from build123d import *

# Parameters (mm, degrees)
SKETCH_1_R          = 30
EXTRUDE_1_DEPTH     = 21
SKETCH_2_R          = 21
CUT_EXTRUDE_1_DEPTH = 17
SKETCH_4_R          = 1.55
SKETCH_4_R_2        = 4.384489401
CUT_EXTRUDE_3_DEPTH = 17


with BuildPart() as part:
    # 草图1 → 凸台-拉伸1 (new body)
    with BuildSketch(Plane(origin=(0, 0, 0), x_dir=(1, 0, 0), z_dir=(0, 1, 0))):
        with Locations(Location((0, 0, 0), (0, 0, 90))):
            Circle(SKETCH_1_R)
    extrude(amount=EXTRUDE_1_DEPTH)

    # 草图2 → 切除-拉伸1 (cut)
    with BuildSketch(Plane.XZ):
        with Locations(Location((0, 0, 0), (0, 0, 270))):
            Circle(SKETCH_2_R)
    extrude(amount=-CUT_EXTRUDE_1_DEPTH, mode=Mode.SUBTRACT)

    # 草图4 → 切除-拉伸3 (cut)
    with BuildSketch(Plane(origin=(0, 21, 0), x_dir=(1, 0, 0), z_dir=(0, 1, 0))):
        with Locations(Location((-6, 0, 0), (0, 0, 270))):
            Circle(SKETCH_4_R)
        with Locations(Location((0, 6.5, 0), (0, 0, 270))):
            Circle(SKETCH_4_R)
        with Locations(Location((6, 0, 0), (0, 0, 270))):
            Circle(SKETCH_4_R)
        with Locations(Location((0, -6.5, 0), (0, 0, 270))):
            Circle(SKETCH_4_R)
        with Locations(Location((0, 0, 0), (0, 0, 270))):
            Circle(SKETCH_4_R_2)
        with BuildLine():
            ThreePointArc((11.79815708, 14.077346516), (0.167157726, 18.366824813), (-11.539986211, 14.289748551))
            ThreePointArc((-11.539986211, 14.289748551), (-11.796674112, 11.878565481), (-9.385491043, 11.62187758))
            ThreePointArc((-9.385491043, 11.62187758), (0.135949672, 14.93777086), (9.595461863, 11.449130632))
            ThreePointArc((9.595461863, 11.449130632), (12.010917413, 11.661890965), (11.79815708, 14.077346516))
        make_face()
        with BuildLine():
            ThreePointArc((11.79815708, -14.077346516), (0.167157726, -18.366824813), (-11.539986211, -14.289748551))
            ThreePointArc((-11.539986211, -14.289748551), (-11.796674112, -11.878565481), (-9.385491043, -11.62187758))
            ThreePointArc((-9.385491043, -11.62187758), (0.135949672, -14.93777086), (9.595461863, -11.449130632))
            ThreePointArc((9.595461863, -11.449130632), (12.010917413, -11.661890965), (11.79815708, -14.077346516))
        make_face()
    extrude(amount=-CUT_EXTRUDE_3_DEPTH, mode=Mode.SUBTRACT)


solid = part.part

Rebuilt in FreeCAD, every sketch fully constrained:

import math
import FreeCAD as App
import Part
import Sketcher

doc = App.newDocument("Part")
params = doc.addObject("Spreadsheet::Sheet", "Params")
for row, (alias, value) in enumerate([
    ("sketch1_diameter", "60 mm"),
    ("pad1_length", "21 mm"),
    ("sketch2_diameter", "42 mm"),
    ("pocket1_length", "17 mm"),
    ("sketch3_diameter", "3.1 mm"),
    ("pocket2_length", "17 mm"),
], start=1):
    params.set(f"A{row}", alias)
    params.set(f"B{row}", "=" + value)
    params.setAlias(f"B{row}", alias)

body = doc.addObject("PartDesign::Body", "Body")

# Sketch on XZ plane
sketch1 = body.newObject("Sketcher::SketchObject", "Sketch")
sketch1.AttachmentSupport = (doc.getObject("XZ_Plane"), [""])
sketch1.MapMode = "FlatFace"
sketch1.addGeometry(Part.Circle(App.Vector(0, 0, 0), App.Vector(0, 0, 1), 30), False)
sketch1.addConstraint([
    Sketcher.Constraint("Coincident", 0, 3, -1, 1),
    Sketcher.Constraint("Diameter", 0, 60.0),
])
sketch1.setExpression("Constraints[1]", "Params.sketch1_diameter")
pad1 = body.newObject("PartDesign::Pad", "Pad")
pad1.Profile = sketch1
pad1.setExpression("Length", "Params.pad1_length")
pad1.Reversed = True

# Sketch on XZ plane
sketch2 = body.newObject("Sketcher::SketchObject", "Sketch001")
sketch2.AttachmentSupport = (doc.getObject("XZ_Plane"), [""])
sketch2.MapMode = "FlatFace"
sketch2.addGeometry(Part.Circle(App.Vector(0, 0, 0), App.Vector(0, 0, 1), 21), False)
sketch2.addConstraint([
    Sketcher.Constraint("Coincident", 0, 3, -1, 1),
    Sketcher.Constraint("Diameter", 0, 42.0),
])
sketch2.setExpression("Constraints[1]", "Params.sketch2_diameter")
pocket1 = body.newObject("PartDesign::Pocket", "Pocket")
pocket1.Profile = sketch2
pocket1.setExpression("Length", "Params.pocket1_length")

# Sketch on XZ plane
sketch3 = body.newObject("Sketcher::SketchObject", "Sketch002")
sketch3.AttachmentSupport = (doc.getObject("XZ_Plane"), [""])
sketch3.MapMode = "FlatFace"
sketch3.AttachmentOffset = App.Placement(App.Vector(0, 0, -21), App.Rotation())
sketch3.addGeometry([
    Part.Circle(App.Vector(-6, 0, 0), App.Vector(0, 0, 1), 1.6),  # 0
    Part.Circle(App.Vector(0, -6.5, 0), App.Vector(0, 0, 1), 1.6),  # 1
    Part.Circle(App.Vector(6, 0, 0), App.Vector(0, 0, 1), 1.6),  # 2
    Part.Circle(App.Vector(0, 6.5, 0), App.Vector(0, 0, 1), 1.6),  # 3
    Part.Circle(App.Vector(0, 0, 0), App.Vector(0, 0, 1), 4.4),  # 4
    Part.ArcOfCircle(Part.Circle(App.Vector(0, 0, 0), App.Vector(0, 0, 1), 18.4), math.radians(-129), math.radians(-50)),  # 5
    Part.ArcOfCircle(Part.Circle(App.Vector(-10.5, -13, 0), App.Vector(0, 0, 1), 1.7), math.radians(51), math.radians(231)),  # 6
    Part.ArcOfCircle(Part.Circle(App.Vector(0, 0, 0), App.Vector(0, 0, 1), 14.9), math.radians(-129), math.radians(-50)),  # 7
    Part.ArcOfCircle(Part.Circle(App.Vector(10.7, -12.8, 0), App.Vector(0, 0, 1), 1.7), math.radians(-50), math.radians(130)),  # 8
    Part.ArcOfCircle(Part.Circle(App.Vector(0, 0, 0), App.Vector(0, 0, 1), 18.4), math.radians(50), math.radians(129)),  # 9
    Part.ArcOfCircle(Part.Circle(App.Vector(10.7, 12.8, 0), App.Vector(0, 0, 1), 1.7), math.radians(-130), math.radians(50)),  # 10
    Part.ArcOfCircle(Part.Circle(App.Vector(0, 0, 0), App.Vector(0, 0, 1), 14.9), math.radians(50), math.radians(129)),  # 11
    Part.ArcOfCircle(Part.Circle(App.Vector(-10.5, 13, 0), App.Vector(0, 0, 1), 1.7), math.radians(129), math.radians(309)),  # 12
], False)
sketch3.addConstraint([
    Sketcher.Constraint("Tangent", 5, 1, 6, 2),
    Sketcher.Constraint("Tangent", 6, 1, 7, 1),
    Sketcher.Constraint("Tangent", 7, 2, 8, 2),
    Sketcher.Constraint("Tangent", 8, 1, 5, 2),
    Sketcher.Constraint("Tangent", 9, 1, 10, 2),
    Sketcher.Constraint("Tangent", 10, 1, 11, 1),
    Sketcher.Constraint("Tangent", 11, 2, 12, 2),
    Sketcher.Constraint("Tangent", 12, 1, 9, 2),
    Sketcher.Constraint("Coincident", 4, 3, -1, 1),
    Sketcher.Constraint("Coincident", 5, 3, -1, 1),
    Sketcher.Constraint("Coincident", 7, 3, -1, 1),
    Sketcher.Constraint("Coincident", 9, 3, -1, 1),
    Sketcher.Constraint("Coincident", 11, 3, -1, 1),
    Sketcher.Constraint("Equal", 0, 1),
    Sketcher.Constraint("Equal", 1, 2),
    Sketcher.Constraint("Equal", 2, 3),
    Sketcher.Constraint("Equal", 5, 9),
    Sketcher.Constraint("Equal", 8, 10),
    Sketcher.Constraint("Symmetric", 0, 3, 2, 3, -1, 1),
    Sketcher.Constraint("Symmetric", 1, 3, 3, 3, -1, 1),
    Sketcher.Constraint("PointOnObject", 0, 3, -1),
    Sketcher.Constraint("PointOnObject", 1, 3, -2),
    Sketcher.Constraint("Vertical", 8, 3, 10, 3),
    Sketcher.Constraint("Vertical", 6, 3, 12, 3),
    Sketcher.Constraint("Diameter", 0, 3.1),
    Sketcher.Constraint("DistanceX", 0, 3, -1, 1, 6.0),
    Sketcher.Constraint("DistanceY", 1, 3, 3, 3, 13.0),
    Sketcher.Constraint("Diameter", 4, 8.768979),
    Sketcher.Constraint("Radius", 7, 14.938389),
    Sketcher.Constraint("Radius", 5, 18.367585),
    Sketcher.Constraint("DistanceX", 6, 3, -1, 1, 10.462739),
    Sketcher.Constraint("DistanceX", -1, 1, 8, 3, 10.696809),
])
sketch3.setExpression("Constraints[24]", "Params.sketch3_diameter")
pocket2 = body.newObject("PartDesign::Pocket", "Pocket001")
pocket2.Profile = sketch3
pocket2.setExpression("Length", "Params.pocket2_length")
pocket2.Reversed = True

doc.recompute()
